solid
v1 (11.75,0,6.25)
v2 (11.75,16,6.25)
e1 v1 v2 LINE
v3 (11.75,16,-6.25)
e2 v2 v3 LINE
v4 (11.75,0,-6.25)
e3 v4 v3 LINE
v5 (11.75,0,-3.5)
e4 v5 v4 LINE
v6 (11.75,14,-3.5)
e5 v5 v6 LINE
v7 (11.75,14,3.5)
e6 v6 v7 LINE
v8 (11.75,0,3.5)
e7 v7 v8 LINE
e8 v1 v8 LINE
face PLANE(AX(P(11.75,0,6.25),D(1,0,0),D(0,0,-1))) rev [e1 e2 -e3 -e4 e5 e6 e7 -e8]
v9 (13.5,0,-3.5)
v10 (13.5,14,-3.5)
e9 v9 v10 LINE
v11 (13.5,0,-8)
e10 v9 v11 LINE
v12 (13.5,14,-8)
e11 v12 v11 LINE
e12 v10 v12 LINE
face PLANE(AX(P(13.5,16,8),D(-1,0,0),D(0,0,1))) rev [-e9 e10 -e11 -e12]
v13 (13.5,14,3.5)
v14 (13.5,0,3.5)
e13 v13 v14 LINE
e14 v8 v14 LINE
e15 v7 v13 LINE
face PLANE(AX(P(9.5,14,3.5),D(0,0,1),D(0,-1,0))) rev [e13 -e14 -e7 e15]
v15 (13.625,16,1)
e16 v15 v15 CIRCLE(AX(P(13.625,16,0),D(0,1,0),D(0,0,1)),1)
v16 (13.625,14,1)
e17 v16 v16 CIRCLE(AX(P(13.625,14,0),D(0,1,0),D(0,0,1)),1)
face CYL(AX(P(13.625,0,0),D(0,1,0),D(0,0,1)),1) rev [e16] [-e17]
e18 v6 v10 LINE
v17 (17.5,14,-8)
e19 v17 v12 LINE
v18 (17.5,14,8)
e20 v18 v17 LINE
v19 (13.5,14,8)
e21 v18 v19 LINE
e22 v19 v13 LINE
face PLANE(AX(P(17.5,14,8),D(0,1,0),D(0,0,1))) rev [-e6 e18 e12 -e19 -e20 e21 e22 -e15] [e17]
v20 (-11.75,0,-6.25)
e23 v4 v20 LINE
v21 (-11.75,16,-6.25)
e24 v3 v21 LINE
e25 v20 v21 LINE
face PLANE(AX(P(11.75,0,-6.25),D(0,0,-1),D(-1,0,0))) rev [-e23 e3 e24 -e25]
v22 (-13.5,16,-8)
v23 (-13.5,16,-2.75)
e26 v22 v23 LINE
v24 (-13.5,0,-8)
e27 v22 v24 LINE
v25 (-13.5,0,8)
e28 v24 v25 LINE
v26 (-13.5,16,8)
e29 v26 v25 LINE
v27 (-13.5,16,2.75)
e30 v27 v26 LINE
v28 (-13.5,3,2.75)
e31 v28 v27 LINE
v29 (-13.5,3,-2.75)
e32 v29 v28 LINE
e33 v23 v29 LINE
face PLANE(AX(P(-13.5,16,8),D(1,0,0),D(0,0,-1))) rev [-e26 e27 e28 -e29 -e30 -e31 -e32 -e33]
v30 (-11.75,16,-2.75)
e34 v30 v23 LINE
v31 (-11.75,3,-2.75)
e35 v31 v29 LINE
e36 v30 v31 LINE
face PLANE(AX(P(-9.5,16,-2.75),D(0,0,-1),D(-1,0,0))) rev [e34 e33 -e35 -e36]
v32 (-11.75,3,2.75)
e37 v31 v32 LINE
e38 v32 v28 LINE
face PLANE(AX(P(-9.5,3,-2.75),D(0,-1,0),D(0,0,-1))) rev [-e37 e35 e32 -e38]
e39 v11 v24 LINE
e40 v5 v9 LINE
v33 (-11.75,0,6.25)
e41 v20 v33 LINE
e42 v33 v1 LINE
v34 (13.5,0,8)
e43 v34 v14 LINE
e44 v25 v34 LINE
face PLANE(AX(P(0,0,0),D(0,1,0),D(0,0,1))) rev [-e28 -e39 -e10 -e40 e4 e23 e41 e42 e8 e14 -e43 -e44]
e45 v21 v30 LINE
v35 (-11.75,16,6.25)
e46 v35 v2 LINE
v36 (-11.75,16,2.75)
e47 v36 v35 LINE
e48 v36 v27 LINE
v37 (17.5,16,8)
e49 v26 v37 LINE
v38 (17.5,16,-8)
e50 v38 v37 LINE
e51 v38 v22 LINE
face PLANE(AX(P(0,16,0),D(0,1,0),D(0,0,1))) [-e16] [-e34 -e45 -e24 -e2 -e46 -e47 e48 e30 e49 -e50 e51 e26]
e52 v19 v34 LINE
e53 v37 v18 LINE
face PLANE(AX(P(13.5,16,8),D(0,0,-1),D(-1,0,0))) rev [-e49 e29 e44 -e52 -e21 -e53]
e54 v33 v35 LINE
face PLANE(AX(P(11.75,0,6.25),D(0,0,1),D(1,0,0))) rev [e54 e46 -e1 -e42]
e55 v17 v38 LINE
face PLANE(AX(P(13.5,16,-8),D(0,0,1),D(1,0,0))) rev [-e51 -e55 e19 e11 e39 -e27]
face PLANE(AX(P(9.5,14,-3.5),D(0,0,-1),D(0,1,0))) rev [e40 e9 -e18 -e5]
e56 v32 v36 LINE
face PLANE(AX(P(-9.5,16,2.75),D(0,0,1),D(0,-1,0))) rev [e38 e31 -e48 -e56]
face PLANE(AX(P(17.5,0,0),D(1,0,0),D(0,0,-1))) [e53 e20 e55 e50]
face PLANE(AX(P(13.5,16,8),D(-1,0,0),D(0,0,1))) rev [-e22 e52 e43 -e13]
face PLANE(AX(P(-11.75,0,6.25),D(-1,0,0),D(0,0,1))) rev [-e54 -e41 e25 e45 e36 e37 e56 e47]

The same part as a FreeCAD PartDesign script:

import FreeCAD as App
import Part
import Sketcher

V = App.Vector
Q = App.Units.Quantity

doc = App.newDocument("Part")
body = doc.addObject("PartDesign::Body", "Body")

sketch1 = body.newObject("Sketcher::SketchObject", "Sketch")
sketch1.AttachmentSupport = (doc.getObject("XZ_Plane"), [""])
sketch1.MapMode = "FlatFace"
sketch1.addGeometry([
    Part.LineSegment(V(-13.5, -8, 0), V(-13.5, 8, 0)),
    Part.LineSegment(V(-13.5, 8, 0), V(13.5, 8, 0)),
    Part.LineSegment(V(13.5, 8, 0), V(13.5, -8, 0)),
    Part.LineSegment(V(13.5, -8, 0), V(-13.5, -8, 0)),
], False)
sketch1.addConstraint([
    Sketcher.Constraint("Coincident", 0, 2, 1, 1),
    Sketcher.Constraint("Coincident", 1, 2, 2, 1),
    Sketcher.Constraint("Coincident", 2, 2, 3, 1),
    Sketcher.Constraint("Coincident", 3, 2, 0, 1),
    Sketcher.Constraint("Vertical", 0),
    Sketcher.Constraint("Horizontal", 1),
    Sketcher.Constraint("Vertical", 2),
    Sketcher.Constraint("Horizontal", 3),
    Sketcher.Constraint("Symmetric", 0, 2, 2, 2, -1, 1),
    Sketcher.Constraint("DistanceX", 1, 1, 1, 2, Q("27 mm")),
    Sketcher.Constraint("DistanceY", 0, 1, 0, 2, Q("16 mm")),
])
pad1 = body.newObject("PartDesign::Pad", "Pad")
pad1.Profile = sketch1
pad1.Length = 16
pad1.Reversed = True

sketch2 = body.newObject("Sketcher::SketchObject", "Sketch001")
sketch2.AttachmentSupport = (doc.getObject("XZ_Plane"), [""])
sketch2.MapMode = "FlatFace"
sketch2.AttachmentOffset = App.Placement(V(0, 0, -16), App.Rotation())
sketch2.addGeometry([
    Part.LineSegment(V(-11.75, -6.25, 0), V(-11.75, 6.25, 0)),
    Part.LineSegment(V(-11.75, 6.25, 0), V(11.75, 6.25, 0)),
    Part.LineSegment(V(11.75, 6.25, 0), V(11.75, -6.25, 0)),
    Part.LineSegment(V(11.75, -6.25, 0), V(-11.75, -6.25, 0)),
], False)
sketch2.addConstraint([
    Sketcher.Constraint("Coincident", 0, 2, 1, 1),
    Sketcher.Constraint("Coincident", 1, 2, 2, 1),
    Sketcher.Constraint("Coincident", 2, 2, 3, 1),
    Sketcher.Constraint("Coincident", 3, 2, 0, 1),
    Sketcher.Constraint("Vertical", 0),
    Sketcher.Constraint("Horizontal", 1),
    Sketcher.Constraint("Vertical", 2),
    Sketcher.Constraint("Horizontal", 3),
    Sketcher.Constraint("Symmetric", 0, 2, 2, 2, -1, 1),
    Sketcher.Constraint("DistanceX", 1, 1, 1, 2, Q("23.5 mm")),
    Sketcher.Constraint("DistanceY", 0, 1, 0, 2, Q("12.5 mm")),
])
pocket1 = body.newObject("PartDesign::Pocket", "Pocket")
pocket1.Profile = sketch2
pocket1.Length = 16
pocket1.Reversed = True

sketch3 = body.newObject("Sketcher::SketchObject", "Sketch002")
sketch3.AttachmentSupport = (doc.getObject("YZ_Plane"), [""])
sketch3.MapMode = "FlatFace"
sketch3.AttachmentOffset = App.Placement(V(0, 0, -13.5), App.Rotation())
sketch3.addGeometry([
    Part.LineSegment(V(16, -2.75, 0), V(3, -2.75, 0)),
    Part.LineSegment(V(3, -2.75, 0), V(3, 2.75, 0)),
    Part.LineSegment(V(3, 2.75, 0), V(16, 2.75, 0)),
    Part.LineSegment(V(16, 2.75, 0), V(16, -2.75, 0)),
], False)
sketch3.addConstraint([
    Sketcher.Constraint("Coincident", 0, 2, 1, 1),
    Sketcher.Constraint("Coincident", 1, 2, 2, 1),
    Sketcher.Constraint("Coincident", 2, 2, 3, 1),
    Sketcher.Constraint("Coincident", 3, 2, 0, 1),
    Sketcher.Constraint("Horizontal", 0),
    Sketcher.Constraint("Vertical", 1),
    Sketcher.Constraint("Horizontal", 2),
    Sketcher.Constraint("Vertical", 3),
    Sketcher.Constraint("DistanceX", 0, 2, 0, 1, Q("13 mm")),
    Sketcher.Constraint("DistanceY", 1, 1, 1, 2, Q("5.5 mm")),
    Sketcher.Constraint("DistanceX", -1, 1, 0, 2, Q("3 mm")),
    Sketcher.Constraint("DistanceY", 0, 2, -1, 1, Q("2.75 mm")),
])
pocket2 = body.newObject("PartDesign::Pocket", "Pocket001")
pocket2.Profile = sketch3
pocket2.Length = 4
pocket2.Reversed = True

sketch4 = body.newObject("Sketcher::SketchObject", "Sketch003")
sketch4.AttachmentSupport = (doc.getObject("YZ_Plane"), [""])
sketch4.MapMode = "FlatFace"
sketch4.AttachmentOffset = App.Placement(V(0, 0, 13.5), App.Rotation())
sketch4.addGeometry([
    Part.LineSegment(V(16, 8, 0), V(14, 8, 0)),
    Part.LineSegment(V(14, 8, 0), V(14, -8, 0)),
    Part.LineSegment(V(14, -8, 0), V(16, -8, 0)),
    Part.LineSegment(V(16, -8, 0), V(16, 8, 0)),
], False)
sketch4.addConstraint([
    Sketcher.Constraint("Coincident", 0, 2, 1, 1),
    Sketcher.Constraint("Coincident", 1, 2, 2, 1),
    Sketcher.Constraint("Coincident", 2, 2, 3, 1),
    Sketcher.Constraint("Coincident", 3, 2, 0, 1),
    Sketcher.Constraint("Horizontal", 0),
    Sketcher.Constraint("Vertical", 1),
    Sketcher.Constraint("Horizontal", 2),
    Sketcher.Constraint("Vertical", 3),
    Sketcher.Constraint("DistanceX", 0, 2, 0, 1, Q("2 mm")),
    Sketcher.Constraint("DistanceY", 1, 2, 1, 1, Q("16 mm")),
    Sketcher.Constraint("DistanceX", -1, 1, 0, 2, Q("14 mm")),
    Sketcher.Constraint("DistanceY", -1, 1, 0, 2, Q("8 mm")),
])
pad2 = body.newObject("PartDesign::Pad", "Pad001")
pad2.Profile = sketch4
pad2.Length = 4

sketch5 = body.newObject("Sketcher::SketchObject", "Sketch004")
sketch5.AttachmentSupport = (doc.getObject("XZ_Plane"), [""])
sketch5.MapMode = "FlatFace"
sketch5.AttachmentOffset = App.Placement(V(0, 0, -16), App.Rotation())
sketch5.addGeometry(Part.Circle(V(13.625, 0, 0), V(0, 0, 1), 1), False)
sketch5.addConstraint([
    Sketcher.Constraint("PointOnObject", 0, 3, -1),
    Sketcher.Constraint("Diameter", 0, Q("2 mm")),
    Sketcher.Constraint("DistanceX", -1, 1, 0, 3, Q("13.625 mm")),
])
pocket3 = body.newObject("PartDesign::Pocket", "Pocket002")
pocket3.Profile = sketch5
pocket3.Type = "ThroughAll"
pocket3.Reversed = True

sketch6 = body.newObject("Sketcher::SketchObject", "Sketch005")
sketch6.AttachmentSupport = (doc.getObject("YZ_Plane"), [""])
sketch6.MapMode = "FlatFace"
sketch6.AttachmentOffset = App.Placement(V(0, 0, 13.5), App.Rotation())
sketch6.addGeometry([
    Part.LineSegment(V(14, 3.5, 0), V(0, 3.5, 0)),
    Part.LineSegment(V(0, 3.5, 0), V(0, -3.5, 0)),
    Part.LineSegment(V(0, -3.5, 0), V(14, -3.5, 0)),
    Part.LineSegment(V(14, -3.5, 0), V(14, 3.5, 0)),
], False)
sketch6.addConstraint([
    Sketcher.Constraint("Coincident", 0, 2, 1, 1),
    Sketcher.Constraint("Coincident", 1, 2, 2, 1),
    Sketcher.Constraint("Coincident", 2, 2, 3, 1),
    Sketcher.Constraint("Coincident", 3, 2, 0, 1),
    Sketcher.Constraint("Horizontal", 0),
    Sketcher.Constraint("Vertical", 1),
    Sketcher.Constraint("Horizontal", 2),
    Sketcher.Constraint("Vertical", 3),
    Sketcher.Constraint("Symmetric", 0, 2, 1, 2, -1, 1),
    Sketcher.Constraint("DistanceX", 0, 2, 0, 1, Q("14 mm")),
    Sketcher.Constraint("DistanceY", 1, 2, 1, 1, Q("7 mm")),
])
pocket4 = body.newObject("PartDesign::Pocket", "Pocket003")
pocket4.Profile = sketch6
pocket4.Length = 4

doc.recompute()
